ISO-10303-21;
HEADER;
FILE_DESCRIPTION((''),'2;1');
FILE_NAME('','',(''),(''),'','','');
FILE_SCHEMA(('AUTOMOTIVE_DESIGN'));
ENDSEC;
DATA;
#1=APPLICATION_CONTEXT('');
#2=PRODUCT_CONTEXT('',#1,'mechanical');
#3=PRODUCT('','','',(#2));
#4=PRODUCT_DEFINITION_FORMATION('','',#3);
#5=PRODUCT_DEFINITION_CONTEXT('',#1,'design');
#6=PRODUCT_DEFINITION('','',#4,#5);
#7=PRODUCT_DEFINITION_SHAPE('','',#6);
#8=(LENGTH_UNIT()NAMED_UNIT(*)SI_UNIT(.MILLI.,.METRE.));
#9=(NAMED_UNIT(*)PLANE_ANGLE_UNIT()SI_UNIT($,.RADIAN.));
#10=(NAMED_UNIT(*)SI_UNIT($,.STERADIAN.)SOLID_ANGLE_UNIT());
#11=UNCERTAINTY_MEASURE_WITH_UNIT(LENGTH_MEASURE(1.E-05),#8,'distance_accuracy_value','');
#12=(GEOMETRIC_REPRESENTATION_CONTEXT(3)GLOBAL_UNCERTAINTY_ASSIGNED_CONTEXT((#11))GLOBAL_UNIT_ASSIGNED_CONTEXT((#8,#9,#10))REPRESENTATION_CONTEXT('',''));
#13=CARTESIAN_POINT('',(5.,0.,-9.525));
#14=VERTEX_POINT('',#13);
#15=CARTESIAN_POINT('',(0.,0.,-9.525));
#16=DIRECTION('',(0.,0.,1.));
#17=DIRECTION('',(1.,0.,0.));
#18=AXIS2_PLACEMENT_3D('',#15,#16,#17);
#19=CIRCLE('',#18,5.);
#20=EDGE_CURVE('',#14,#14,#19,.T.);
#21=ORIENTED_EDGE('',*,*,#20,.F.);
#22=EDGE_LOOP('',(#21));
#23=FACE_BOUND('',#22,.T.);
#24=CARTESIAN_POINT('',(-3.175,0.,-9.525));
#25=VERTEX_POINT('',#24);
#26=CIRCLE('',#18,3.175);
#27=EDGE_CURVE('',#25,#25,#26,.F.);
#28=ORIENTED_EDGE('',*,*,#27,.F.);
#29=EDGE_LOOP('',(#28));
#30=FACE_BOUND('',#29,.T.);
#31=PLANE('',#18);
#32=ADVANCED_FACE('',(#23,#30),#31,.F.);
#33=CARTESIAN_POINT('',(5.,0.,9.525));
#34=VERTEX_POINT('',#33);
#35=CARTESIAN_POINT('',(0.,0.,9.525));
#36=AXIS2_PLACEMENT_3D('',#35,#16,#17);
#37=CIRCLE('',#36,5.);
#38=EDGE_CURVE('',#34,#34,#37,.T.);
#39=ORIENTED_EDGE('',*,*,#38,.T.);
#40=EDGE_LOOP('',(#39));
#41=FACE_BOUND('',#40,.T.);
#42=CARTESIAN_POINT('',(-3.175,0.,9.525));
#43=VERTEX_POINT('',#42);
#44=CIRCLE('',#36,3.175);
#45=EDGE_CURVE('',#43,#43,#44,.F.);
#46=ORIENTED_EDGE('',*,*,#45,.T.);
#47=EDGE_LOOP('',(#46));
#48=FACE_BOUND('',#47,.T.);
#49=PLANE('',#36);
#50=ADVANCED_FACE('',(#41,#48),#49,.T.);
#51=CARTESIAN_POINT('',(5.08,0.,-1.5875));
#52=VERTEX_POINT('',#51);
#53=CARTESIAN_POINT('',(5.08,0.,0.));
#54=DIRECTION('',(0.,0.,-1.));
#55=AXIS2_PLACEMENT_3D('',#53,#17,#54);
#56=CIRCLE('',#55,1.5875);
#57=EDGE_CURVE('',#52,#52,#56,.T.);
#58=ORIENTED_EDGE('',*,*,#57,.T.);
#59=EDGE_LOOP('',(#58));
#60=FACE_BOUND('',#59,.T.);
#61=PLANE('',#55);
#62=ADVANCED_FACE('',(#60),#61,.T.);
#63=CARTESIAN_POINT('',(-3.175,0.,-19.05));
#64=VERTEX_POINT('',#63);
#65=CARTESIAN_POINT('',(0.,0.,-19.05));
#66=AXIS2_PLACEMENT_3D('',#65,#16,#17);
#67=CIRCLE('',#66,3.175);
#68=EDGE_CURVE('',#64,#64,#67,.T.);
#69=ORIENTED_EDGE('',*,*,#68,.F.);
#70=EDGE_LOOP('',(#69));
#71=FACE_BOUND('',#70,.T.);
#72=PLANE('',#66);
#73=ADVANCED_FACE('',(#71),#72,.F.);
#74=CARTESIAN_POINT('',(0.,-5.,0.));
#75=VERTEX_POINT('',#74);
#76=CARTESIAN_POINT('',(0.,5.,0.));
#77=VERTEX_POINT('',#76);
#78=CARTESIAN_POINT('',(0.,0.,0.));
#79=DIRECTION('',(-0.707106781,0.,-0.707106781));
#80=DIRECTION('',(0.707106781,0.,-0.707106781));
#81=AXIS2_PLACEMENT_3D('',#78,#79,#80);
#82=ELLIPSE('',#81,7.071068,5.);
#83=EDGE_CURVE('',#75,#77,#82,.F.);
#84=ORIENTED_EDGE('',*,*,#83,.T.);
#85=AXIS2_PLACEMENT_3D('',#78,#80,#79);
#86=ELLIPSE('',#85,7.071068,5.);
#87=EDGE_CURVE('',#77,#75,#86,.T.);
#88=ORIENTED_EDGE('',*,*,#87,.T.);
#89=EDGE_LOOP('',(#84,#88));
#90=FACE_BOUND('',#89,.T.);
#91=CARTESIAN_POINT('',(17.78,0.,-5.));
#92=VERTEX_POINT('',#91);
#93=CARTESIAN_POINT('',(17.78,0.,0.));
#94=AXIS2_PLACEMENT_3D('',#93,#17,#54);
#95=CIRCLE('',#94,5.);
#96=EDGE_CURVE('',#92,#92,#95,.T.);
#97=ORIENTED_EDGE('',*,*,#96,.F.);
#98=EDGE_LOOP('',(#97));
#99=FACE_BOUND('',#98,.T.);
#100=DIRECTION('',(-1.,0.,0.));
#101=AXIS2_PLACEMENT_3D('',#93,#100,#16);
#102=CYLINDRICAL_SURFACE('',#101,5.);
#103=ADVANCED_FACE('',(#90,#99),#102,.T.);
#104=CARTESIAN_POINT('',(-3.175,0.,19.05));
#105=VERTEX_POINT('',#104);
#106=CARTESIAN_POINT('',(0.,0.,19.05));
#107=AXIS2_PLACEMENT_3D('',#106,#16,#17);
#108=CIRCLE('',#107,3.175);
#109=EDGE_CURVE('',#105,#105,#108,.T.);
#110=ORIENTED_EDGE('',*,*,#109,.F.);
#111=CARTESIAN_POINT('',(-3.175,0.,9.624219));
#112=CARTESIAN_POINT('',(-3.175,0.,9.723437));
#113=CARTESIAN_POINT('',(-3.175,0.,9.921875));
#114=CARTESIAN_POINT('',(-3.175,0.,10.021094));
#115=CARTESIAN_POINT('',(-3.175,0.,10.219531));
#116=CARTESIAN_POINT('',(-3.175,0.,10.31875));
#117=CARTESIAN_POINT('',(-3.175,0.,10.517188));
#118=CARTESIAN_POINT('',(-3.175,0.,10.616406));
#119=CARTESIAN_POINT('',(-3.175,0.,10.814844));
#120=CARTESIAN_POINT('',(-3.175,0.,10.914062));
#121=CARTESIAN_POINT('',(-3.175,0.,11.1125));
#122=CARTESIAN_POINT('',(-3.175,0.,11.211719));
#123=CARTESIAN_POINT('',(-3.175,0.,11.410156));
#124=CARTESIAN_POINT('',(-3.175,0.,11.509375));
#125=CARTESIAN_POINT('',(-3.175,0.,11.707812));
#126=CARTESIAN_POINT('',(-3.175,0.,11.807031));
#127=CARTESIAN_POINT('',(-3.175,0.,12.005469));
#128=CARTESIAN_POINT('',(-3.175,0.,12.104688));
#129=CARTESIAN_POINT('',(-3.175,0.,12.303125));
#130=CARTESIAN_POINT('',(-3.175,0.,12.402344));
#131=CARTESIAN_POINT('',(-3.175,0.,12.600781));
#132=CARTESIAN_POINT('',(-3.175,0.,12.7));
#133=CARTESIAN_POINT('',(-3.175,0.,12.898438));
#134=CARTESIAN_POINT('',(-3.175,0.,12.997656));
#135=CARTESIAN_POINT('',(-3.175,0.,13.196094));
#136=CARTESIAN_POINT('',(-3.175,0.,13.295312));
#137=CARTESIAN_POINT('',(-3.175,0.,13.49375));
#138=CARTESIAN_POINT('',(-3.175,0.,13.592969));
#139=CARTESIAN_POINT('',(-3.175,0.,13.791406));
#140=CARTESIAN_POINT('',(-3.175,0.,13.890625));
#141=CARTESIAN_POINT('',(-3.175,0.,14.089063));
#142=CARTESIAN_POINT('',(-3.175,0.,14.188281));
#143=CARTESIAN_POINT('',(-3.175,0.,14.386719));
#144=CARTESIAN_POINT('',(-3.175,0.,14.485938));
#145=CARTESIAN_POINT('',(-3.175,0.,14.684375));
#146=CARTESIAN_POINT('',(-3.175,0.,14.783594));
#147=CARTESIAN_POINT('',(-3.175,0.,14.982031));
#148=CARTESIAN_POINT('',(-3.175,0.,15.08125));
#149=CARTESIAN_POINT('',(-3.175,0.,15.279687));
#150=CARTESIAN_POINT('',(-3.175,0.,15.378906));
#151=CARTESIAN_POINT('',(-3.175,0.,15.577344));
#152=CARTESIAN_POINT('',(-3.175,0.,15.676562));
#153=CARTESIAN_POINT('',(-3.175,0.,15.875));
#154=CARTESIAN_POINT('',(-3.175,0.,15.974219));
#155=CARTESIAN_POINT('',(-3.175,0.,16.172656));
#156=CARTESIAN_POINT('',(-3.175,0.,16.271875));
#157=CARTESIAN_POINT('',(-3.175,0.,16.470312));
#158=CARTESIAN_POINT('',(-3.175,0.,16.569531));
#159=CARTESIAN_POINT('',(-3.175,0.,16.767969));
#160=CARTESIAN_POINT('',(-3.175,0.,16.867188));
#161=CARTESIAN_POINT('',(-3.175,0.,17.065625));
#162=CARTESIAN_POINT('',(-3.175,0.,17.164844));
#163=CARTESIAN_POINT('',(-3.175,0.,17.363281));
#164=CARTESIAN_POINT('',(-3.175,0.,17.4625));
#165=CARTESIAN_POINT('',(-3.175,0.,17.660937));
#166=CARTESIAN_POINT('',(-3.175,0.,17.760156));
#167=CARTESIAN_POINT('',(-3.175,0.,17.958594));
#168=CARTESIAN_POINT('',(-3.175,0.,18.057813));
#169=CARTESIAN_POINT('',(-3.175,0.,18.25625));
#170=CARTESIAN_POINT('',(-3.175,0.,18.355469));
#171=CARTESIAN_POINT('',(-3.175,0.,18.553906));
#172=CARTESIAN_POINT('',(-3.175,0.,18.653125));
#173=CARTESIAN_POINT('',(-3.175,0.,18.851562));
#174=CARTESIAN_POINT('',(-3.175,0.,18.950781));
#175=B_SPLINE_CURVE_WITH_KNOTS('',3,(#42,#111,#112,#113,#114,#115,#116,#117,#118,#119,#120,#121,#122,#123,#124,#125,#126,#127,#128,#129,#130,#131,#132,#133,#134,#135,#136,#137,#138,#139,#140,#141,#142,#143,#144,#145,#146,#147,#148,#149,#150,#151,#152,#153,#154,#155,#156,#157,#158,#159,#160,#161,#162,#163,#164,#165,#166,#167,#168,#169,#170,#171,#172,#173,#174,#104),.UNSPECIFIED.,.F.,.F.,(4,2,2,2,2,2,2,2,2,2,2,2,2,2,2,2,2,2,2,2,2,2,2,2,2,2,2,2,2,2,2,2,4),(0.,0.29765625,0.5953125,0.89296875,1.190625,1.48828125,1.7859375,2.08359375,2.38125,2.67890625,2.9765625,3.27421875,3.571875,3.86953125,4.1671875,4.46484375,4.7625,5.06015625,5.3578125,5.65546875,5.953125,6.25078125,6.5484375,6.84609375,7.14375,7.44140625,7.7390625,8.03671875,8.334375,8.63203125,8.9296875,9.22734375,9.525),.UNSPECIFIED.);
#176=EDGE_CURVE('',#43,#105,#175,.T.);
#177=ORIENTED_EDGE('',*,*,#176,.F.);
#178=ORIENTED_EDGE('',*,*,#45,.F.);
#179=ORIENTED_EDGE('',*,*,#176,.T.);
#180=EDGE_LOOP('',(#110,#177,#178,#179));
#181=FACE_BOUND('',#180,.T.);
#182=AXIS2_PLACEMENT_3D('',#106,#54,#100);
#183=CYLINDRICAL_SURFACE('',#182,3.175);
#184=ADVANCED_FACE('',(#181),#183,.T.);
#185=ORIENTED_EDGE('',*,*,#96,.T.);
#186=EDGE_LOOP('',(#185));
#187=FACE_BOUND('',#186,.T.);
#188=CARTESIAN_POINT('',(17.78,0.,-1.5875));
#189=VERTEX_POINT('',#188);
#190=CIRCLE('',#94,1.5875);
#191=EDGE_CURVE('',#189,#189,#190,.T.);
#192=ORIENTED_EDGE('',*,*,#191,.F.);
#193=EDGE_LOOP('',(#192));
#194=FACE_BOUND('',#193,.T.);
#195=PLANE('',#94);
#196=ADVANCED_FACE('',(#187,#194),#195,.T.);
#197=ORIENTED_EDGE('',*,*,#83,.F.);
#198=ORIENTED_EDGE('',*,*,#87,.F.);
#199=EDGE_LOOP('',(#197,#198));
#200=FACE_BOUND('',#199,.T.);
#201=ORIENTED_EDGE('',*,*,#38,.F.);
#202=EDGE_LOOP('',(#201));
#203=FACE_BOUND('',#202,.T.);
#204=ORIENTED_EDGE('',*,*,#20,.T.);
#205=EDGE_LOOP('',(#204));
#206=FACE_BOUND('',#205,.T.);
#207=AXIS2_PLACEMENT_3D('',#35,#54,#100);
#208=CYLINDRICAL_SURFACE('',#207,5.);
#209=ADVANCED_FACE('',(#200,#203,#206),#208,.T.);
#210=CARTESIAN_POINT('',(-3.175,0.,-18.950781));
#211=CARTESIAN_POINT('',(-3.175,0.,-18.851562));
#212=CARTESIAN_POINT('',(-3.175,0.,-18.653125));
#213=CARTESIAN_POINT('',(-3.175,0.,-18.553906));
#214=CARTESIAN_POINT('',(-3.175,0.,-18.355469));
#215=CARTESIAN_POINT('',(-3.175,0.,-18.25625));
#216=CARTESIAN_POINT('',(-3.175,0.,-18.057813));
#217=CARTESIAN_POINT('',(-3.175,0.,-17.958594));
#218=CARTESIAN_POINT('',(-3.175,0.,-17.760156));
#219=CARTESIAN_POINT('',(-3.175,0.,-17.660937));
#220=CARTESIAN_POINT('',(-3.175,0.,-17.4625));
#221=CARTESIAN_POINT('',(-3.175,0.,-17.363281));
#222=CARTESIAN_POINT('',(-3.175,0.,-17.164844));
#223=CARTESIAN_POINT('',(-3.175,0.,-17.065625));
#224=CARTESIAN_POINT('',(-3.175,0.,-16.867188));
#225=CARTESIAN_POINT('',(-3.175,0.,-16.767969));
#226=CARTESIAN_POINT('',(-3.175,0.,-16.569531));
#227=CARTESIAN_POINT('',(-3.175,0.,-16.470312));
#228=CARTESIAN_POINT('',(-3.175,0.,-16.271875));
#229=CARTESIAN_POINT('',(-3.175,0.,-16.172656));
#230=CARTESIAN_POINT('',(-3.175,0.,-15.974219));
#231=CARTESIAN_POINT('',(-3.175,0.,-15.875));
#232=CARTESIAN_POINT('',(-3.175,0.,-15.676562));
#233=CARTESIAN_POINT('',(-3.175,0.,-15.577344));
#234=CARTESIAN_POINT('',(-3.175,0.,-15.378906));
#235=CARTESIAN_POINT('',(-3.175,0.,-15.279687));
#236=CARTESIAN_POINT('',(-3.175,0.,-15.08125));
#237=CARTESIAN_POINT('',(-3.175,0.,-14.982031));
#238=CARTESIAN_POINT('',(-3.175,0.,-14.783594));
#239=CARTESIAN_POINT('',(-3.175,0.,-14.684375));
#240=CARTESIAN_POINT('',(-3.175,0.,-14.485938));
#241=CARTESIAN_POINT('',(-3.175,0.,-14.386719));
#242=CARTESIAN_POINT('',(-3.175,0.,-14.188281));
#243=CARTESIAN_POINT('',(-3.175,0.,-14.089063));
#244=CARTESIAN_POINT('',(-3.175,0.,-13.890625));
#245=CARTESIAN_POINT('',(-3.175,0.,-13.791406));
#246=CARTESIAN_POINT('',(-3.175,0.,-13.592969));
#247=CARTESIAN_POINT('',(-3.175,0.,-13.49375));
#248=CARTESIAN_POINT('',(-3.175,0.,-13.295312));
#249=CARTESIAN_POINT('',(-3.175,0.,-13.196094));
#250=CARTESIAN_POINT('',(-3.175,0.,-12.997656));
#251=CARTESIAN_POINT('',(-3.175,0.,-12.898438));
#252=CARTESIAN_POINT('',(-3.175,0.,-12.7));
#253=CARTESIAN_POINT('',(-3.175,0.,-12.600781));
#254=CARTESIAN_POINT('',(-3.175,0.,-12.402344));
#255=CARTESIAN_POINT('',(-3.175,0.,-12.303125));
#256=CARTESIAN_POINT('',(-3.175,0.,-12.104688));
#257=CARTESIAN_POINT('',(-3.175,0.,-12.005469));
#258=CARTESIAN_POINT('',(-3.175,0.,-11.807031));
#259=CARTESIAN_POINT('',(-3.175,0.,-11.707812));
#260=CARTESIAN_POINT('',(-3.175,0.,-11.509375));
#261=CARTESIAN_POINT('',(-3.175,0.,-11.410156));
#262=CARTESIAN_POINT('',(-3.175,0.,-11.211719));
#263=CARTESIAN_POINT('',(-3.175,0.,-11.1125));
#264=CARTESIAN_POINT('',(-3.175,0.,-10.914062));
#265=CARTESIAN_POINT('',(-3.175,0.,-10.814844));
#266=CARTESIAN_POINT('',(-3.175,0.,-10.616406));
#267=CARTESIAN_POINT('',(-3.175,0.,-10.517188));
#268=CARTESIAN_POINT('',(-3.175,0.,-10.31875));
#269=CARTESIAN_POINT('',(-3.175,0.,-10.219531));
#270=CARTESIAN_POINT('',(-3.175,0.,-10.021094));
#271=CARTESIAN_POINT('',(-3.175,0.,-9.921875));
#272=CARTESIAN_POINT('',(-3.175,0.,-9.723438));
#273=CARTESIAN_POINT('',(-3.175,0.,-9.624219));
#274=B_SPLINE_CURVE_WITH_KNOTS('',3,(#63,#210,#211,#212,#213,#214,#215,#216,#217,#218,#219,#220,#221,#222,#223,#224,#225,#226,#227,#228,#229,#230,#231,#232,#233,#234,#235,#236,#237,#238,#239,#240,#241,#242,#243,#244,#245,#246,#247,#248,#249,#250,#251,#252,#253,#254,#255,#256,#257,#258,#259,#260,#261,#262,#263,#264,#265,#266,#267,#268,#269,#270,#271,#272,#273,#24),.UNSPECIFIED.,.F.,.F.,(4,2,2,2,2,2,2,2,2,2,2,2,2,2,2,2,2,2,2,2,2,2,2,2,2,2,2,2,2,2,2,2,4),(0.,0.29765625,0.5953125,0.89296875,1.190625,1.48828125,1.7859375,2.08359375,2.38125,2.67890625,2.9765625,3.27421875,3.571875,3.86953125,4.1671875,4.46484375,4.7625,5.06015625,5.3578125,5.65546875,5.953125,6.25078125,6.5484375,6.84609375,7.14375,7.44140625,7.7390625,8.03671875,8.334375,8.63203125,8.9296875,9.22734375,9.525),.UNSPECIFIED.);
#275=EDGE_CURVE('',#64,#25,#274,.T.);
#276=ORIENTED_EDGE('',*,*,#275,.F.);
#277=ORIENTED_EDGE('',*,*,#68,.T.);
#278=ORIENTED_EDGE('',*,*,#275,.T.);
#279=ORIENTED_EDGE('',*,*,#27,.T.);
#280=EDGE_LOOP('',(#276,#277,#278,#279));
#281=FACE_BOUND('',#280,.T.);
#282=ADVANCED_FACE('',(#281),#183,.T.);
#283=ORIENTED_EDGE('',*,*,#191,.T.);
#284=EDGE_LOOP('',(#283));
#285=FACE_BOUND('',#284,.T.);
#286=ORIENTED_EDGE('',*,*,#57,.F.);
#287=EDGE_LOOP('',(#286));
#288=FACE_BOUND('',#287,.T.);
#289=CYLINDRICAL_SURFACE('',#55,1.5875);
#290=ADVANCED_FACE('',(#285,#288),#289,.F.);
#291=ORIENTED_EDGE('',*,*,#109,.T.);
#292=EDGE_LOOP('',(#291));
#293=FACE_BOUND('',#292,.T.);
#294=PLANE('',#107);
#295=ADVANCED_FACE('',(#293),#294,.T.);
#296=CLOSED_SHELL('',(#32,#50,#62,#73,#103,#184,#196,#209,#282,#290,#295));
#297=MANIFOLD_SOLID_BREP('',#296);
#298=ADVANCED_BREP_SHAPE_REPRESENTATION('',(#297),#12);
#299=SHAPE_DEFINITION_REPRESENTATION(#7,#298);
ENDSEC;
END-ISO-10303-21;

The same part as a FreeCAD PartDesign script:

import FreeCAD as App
import Part
import Sketcher
Q = App.Units.Quantity

doc = App.newDocument("Part")
params = doc.addObject("Spreadsheet::Sheet", "Params")
for row, (alias, value) in enumerate([
    ("pad1_length", "0.75 in"),
    ("sketch2_diameter", "0.25 in"),
    ("pad2_length", "1.5 in"),
    ("pad3_length", "0.7 in"),
    ("sketch4_diameter", "0.125 in"),
    ("pocket1_length", "0.5 in"),
], start=1):
    params.set(f"A{row}", alias)
    params.set(f"B{row}", "=" + value)
    params.setAlias(f"B{row}", alias)

body = doc.addObject("PartDesign::Body", "Body")

# Sketch on XY plane
sketch1 = body.newObject("Sketcher::SketchObject", "Sketch")
sketch1.AttachmentSupport = (doc.getObject("XY_Plane"), [""])
sketch1.MapMode = "FlatFace"
sketch1.addGeometry(Part.Circle(App.Vector(0, 0, 0), App.Vector(0, 0, 1), 5), False)
sketch1.addConstraint(Sketcher.Constraint("Coincident", 0, 3, -1, 1))
sketch1.addConstraint(Sketcher.Constraint("Diameter", 0, 10.0))
pad1 = body.newObject("PartDesign::Pad", "Pad")
pad1.Profile = sketch1
pad1.setExpression("Length", "Params.pad1_length")
pad1.Midplane = True

# Sketch on XY plane
sketch2 = body.newObject("Sketcher::SketchObject", "Sketch001")
sketch2.AttachmentSupport = (doc.getObject("XY_Plane"), [""])
sketch2.MapMode = "FlatFace"
sketch2.addGeometry(Part.Circle(App.Vector(0, 0, 0), App.Vector(0, 0, 1), 3.2), False)
sketch2.addConstraint(Sketcher.Constraint("Coincident", 0, 3, -1, 1))
sketch2.addConstraint(Sketcher.Constraint("Diameter", 0, Q("0.25 in")))
sketch2.setExpression("Constraints[1]", "Params.sketch2_diameter")
pad2 = body.newObject("PartDesign::Pad", "Pad001")
pad2.Profile = sketch2
pad2.setExpression("Length", "Params.pad2_length")
pad2.Midplane = True

# Sketch on YZ plane
sketch3 = body.newObject("Sketcher::SketchObject", "Sketch002")
sketch3.AttachmentSupport = (doc.getObject("YZ_Plane"), [""])
sketch3.MapMode = "FlatFace"
sketch3.addGeometry(Part.Circle(App.Vector(0, 0, 0), App.Vector(0, 0, 1), 5), False)
sketch3.addConstraint(Sketcher.Constraint("Coincident", 0, 3, -1, 1))
sketch3.addConstraint(Sketcher.Constraint("Diameter", 0, 10.0))
pad3 = body.newObject("PartDesign::Pad", "Pad002")
pad3.Profile = sketch3
pad3.setExpression("Length", "Params.pad3_length")

# Sketch on YZ plane
sketch4 = body.newObject("Sketcher::SketchObject", "Sketch003")
sketch4.AttachmentSupport = (doc.getObject("YZ_Plane"), [""])
sketch4.MapMode = "FlatFace"
sketch4.AttachmentOffset = App.Placement(App.Vector(0, 0, 0.7 * 25.4), App.Rotation())
sketch4.addGeometry(Part.Circle(App.Vector(0, 0, 0), App.Vector(0, 0, 1), 1.6), False)
sketch4.addConstraint(Sketcher.Constraint("Coincident", 0, 3, -1, 1))
sketch4.addConstraint(Sketcher.Constraint("Diameter", 0, Q("0.125 in")))
sketch4.setExpression("Constraints[1]", "Params.sketch4_diameter")
pocket1 = body.newObject("PartDesign::Pocket", "Pocket")
pocket1.Profile = sketch4
pocket1.setExpression("Length", "Params.pocket1_length")

doc.recompute()
